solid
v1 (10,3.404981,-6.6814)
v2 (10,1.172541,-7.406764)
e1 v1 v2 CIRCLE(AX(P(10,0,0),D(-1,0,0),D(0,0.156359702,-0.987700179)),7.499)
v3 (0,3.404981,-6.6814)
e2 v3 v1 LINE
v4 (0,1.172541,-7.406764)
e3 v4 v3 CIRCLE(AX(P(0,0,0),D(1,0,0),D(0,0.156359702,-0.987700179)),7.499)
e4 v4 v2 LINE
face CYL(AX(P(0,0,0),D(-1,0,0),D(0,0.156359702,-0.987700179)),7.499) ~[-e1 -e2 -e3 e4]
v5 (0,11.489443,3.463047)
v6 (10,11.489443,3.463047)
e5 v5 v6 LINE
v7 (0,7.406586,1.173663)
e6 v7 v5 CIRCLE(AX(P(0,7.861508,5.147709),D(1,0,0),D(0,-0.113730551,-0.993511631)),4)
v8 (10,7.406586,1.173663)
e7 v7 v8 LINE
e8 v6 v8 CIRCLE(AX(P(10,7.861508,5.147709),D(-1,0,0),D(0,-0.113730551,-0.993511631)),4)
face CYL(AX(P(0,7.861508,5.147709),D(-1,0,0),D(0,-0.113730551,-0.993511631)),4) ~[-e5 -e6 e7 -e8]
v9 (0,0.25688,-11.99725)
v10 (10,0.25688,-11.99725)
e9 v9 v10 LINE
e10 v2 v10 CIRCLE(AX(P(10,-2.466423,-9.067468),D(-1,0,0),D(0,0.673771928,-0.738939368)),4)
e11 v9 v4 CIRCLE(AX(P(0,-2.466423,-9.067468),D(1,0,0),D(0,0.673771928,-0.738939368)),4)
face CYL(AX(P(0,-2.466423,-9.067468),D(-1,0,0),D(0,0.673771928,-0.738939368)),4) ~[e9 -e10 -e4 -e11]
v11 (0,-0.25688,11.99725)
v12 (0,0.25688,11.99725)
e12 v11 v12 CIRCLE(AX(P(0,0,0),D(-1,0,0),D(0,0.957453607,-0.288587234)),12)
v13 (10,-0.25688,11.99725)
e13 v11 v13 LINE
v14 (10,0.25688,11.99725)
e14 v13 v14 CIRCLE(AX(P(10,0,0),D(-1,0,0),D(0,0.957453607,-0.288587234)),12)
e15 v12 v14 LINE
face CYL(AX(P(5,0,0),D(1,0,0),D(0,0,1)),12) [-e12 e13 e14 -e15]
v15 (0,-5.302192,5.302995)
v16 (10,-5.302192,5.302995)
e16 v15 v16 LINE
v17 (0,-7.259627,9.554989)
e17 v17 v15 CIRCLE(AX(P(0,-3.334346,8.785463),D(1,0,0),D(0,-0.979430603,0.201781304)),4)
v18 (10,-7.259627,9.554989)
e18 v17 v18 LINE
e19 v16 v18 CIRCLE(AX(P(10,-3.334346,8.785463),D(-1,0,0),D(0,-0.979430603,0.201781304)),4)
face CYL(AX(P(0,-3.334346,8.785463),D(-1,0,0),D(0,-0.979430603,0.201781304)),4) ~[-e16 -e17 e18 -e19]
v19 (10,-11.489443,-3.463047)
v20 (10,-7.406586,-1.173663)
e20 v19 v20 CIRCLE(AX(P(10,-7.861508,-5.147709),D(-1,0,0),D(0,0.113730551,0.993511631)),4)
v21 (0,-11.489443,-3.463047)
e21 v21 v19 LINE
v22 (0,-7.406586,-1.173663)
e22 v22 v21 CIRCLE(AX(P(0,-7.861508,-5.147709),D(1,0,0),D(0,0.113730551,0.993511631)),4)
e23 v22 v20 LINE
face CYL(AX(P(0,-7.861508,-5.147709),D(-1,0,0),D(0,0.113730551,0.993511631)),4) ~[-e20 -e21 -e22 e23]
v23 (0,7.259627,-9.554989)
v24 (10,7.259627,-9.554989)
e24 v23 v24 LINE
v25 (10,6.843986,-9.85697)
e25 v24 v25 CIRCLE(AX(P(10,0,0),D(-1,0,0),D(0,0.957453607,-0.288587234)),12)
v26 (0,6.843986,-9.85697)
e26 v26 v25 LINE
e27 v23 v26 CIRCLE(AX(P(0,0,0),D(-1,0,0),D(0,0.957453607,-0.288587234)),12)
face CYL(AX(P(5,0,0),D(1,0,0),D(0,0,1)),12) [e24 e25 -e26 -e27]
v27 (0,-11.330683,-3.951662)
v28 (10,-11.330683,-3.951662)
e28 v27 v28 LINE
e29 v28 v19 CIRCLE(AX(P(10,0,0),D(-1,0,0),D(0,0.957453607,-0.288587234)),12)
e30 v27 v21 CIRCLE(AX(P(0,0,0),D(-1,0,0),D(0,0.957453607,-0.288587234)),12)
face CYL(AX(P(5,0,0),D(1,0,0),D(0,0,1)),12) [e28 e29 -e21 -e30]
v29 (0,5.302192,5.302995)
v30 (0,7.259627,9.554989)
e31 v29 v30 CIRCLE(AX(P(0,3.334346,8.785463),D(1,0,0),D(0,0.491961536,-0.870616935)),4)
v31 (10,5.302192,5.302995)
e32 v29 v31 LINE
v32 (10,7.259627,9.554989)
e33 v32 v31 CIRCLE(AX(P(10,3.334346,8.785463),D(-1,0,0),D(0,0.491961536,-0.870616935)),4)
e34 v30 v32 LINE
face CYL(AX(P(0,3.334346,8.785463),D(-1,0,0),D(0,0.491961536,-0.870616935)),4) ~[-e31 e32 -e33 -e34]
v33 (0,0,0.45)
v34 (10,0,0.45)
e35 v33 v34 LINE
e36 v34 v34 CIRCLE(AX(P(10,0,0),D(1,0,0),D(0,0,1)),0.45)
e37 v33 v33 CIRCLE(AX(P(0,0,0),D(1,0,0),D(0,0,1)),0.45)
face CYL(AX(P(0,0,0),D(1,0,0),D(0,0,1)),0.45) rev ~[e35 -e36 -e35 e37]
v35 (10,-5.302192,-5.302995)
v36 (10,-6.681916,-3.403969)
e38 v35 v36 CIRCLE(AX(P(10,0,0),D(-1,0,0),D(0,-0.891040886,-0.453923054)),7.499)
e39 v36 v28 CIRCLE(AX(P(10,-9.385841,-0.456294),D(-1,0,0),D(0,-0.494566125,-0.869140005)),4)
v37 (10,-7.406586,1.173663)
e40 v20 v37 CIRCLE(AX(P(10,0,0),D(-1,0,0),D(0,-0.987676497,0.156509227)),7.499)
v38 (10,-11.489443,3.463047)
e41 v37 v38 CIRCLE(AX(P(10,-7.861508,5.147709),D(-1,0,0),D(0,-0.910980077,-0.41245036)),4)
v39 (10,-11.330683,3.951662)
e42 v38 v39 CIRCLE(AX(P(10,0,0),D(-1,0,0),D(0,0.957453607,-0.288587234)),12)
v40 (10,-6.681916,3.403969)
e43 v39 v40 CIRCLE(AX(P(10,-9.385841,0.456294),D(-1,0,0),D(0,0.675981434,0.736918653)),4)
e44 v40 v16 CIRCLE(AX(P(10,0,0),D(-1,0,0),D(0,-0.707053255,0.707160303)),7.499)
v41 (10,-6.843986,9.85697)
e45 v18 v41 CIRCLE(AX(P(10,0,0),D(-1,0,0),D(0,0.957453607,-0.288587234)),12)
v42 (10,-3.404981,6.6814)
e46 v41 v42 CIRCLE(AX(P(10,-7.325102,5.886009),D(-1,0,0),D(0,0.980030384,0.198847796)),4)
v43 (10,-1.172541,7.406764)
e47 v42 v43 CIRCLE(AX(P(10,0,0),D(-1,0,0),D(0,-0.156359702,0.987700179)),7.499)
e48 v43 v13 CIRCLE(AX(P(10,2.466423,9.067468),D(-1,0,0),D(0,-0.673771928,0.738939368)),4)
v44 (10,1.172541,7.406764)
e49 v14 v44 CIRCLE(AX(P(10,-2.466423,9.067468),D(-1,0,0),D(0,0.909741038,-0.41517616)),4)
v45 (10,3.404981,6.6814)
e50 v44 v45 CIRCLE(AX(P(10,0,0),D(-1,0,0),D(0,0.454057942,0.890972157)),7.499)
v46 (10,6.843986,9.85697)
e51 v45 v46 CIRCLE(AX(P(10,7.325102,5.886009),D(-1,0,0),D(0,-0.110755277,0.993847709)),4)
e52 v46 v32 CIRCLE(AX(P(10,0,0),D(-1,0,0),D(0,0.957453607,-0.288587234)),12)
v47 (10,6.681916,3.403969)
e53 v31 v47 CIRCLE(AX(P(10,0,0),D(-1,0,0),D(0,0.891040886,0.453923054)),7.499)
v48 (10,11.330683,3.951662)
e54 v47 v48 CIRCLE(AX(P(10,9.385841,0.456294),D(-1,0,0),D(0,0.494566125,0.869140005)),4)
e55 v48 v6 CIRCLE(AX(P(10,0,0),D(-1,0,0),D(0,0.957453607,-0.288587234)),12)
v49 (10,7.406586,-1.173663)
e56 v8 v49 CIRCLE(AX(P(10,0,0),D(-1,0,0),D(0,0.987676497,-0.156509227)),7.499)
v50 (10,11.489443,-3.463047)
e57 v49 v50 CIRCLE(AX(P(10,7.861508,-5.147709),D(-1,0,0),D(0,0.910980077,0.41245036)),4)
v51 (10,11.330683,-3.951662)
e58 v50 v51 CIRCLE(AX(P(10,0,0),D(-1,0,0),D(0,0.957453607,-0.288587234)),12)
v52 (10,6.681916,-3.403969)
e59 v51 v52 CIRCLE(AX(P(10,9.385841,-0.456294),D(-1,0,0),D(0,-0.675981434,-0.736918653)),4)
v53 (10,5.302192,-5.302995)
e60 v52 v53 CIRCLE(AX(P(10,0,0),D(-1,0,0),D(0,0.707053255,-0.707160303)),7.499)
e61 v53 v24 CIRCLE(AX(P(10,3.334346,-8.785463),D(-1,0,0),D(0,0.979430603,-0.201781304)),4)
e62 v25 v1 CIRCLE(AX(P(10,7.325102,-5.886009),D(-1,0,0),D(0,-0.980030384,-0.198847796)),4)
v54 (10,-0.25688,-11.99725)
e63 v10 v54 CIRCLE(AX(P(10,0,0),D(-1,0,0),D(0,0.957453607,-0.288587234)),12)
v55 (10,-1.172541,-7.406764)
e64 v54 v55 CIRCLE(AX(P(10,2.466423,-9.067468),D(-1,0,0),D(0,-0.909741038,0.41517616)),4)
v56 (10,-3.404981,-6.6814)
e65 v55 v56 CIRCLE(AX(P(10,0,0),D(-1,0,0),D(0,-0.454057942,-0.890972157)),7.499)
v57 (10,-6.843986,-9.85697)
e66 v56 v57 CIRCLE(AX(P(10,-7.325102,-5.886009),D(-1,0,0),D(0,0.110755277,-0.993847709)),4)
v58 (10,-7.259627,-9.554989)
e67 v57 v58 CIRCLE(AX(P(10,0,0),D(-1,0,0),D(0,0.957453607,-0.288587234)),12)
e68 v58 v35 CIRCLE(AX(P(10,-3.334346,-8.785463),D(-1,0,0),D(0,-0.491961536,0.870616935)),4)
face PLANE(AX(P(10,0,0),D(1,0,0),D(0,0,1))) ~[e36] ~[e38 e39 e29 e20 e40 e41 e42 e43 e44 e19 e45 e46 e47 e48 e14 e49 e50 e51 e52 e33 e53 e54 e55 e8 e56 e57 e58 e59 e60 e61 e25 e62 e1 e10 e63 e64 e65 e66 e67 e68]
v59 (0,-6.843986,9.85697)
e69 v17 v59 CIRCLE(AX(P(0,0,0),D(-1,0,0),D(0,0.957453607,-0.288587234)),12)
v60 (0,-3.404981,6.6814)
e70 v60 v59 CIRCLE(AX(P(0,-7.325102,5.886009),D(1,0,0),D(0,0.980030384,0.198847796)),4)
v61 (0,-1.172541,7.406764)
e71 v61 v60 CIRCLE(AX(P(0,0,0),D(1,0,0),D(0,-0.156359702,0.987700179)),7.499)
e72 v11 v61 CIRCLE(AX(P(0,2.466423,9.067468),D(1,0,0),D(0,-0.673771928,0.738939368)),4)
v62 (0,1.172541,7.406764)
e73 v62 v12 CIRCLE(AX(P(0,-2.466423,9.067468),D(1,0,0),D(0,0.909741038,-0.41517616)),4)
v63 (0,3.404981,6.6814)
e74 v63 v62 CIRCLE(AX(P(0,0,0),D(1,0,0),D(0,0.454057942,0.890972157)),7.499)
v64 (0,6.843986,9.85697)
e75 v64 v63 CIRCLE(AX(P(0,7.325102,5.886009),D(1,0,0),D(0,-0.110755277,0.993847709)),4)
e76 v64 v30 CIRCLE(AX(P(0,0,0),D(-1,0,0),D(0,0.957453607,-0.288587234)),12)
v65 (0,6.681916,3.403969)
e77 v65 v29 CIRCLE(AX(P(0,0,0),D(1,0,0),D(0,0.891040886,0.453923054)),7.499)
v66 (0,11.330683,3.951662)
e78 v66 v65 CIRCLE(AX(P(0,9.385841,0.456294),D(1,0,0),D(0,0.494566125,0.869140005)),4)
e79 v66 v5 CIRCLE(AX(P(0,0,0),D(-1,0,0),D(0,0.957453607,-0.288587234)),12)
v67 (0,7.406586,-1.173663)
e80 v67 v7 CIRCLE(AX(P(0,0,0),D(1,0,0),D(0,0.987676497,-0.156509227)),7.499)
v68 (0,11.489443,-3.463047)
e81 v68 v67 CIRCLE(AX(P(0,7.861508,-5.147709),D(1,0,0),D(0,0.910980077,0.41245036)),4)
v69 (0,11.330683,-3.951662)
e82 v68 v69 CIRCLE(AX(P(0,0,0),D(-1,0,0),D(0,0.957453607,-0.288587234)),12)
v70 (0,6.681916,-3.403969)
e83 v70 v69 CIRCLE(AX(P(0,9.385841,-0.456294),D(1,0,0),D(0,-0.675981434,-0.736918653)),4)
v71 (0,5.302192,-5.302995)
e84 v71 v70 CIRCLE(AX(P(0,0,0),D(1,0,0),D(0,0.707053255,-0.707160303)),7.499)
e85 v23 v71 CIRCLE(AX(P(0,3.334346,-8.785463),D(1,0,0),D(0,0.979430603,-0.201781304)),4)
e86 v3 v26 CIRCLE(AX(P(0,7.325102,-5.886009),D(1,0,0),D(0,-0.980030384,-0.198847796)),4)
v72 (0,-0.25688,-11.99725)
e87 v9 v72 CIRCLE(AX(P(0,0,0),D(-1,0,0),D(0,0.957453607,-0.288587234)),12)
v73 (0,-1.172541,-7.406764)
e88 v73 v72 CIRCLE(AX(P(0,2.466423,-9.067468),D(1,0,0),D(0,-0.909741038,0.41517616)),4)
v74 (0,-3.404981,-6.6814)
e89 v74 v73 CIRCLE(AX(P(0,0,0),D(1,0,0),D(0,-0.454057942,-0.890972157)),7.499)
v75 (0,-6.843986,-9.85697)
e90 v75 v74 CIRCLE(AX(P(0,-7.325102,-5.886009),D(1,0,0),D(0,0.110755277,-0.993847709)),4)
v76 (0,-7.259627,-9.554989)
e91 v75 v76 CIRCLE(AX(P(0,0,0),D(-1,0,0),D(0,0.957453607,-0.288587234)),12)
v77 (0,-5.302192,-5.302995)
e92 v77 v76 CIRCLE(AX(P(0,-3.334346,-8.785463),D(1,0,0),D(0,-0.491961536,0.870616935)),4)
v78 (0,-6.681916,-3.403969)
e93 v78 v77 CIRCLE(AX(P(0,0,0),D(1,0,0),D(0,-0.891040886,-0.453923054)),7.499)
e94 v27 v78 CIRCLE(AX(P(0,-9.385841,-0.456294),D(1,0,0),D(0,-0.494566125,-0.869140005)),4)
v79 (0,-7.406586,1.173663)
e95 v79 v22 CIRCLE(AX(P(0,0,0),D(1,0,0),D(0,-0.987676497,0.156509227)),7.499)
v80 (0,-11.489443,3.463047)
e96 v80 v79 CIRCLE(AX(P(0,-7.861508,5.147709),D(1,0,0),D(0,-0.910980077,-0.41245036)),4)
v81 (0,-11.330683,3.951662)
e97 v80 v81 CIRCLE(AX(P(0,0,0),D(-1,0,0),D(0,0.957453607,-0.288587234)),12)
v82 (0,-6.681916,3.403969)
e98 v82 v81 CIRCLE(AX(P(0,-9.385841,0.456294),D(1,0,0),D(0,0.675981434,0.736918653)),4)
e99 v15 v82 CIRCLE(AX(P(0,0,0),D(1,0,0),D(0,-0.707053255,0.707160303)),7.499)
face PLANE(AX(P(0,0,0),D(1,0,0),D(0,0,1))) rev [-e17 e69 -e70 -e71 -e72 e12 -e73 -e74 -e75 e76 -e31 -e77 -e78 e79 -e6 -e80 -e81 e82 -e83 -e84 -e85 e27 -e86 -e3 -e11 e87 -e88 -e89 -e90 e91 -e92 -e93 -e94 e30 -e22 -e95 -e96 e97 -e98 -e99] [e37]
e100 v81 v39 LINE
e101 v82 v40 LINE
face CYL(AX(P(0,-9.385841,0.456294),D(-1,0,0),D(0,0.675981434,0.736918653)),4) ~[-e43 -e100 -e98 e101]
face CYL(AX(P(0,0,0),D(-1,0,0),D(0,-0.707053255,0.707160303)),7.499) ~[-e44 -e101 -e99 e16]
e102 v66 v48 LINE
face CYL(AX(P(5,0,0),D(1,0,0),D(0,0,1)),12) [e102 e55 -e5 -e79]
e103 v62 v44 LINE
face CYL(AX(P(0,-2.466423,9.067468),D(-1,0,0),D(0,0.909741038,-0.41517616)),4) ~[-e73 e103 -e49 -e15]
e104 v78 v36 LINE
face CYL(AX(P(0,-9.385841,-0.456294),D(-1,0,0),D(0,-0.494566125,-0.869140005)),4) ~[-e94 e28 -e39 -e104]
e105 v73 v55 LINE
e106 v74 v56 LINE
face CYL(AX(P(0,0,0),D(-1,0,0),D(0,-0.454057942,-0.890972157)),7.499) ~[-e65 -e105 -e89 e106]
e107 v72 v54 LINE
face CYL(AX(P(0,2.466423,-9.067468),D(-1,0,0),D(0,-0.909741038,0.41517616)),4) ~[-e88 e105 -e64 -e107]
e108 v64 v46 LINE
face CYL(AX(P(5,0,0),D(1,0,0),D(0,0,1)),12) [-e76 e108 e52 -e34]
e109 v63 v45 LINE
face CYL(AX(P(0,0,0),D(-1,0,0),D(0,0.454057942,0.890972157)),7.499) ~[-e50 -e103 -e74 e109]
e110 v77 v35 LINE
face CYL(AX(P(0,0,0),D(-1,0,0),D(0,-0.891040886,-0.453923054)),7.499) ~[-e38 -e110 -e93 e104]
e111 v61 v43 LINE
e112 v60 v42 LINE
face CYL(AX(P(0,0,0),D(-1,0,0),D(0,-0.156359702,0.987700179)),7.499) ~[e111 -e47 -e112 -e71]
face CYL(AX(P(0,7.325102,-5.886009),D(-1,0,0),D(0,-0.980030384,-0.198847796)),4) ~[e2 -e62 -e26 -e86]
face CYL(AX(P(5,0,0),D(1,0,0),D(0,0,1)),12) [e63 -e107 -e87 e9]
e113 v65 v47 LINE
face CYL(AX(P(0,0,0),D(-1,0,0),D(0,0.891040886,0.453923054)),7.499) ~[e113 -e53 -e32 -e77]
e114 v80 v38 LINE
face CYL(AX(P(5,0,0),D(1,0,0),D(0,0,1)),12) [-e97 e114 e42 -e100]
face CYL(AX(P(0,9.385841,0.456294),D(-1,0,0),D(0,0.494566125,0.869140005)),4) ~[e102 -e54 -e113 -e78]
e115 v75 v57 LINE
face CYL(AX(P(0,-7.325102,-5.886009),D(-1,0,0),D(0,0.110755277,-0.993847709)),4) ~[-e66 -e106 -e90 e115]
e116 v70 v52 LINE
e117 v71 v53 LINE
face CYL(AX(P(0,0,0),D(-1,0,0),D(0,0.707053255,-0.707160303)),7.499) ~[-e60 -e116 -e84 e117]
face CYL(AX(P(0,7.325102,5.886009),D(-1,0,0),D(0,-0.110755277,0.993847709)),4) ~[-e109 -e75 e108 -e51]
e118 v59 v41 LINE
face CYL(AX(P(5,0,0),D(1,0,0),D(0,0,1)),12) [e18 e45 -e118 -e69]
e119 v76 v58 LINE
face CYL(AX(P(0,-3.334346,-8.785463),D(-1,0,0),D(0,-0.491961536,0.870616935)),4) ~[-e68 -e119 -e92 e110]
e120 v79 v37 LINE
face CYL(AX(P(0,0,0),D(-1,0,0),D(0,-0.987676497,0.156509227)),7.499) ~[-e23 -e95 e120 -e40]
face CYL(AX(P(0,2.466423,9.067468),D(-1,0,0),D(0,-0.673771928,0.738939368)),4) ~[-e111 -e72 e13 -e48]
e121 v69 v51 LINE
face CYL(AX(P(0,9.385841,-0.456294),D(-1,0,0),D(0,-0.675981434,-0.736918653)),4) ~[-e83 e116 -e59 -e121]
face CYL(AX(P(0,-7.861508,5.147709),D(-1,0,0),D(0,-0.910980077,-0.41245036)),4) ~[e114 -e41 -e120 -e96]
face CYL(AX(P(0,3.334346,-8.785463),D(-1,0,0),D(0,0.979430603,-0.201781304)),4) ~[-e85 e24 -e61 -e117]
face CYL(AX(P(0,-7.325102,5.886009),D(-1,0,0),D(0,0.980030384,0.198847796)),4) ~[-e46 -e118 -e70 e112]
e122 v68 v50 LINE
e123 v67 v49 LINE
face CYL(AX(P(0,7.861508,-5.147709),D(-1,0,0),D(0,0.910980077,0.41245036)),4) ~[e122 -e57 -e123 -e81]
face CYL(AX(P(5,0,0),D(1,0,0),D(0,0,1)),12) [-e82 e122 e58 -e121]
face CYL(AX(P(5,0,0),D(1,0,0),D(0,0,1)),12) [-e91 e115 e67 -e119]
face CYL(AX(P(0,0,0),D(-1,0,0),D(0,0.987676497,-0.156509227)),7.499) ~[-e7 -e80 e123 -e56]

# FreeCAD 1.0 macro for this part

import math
import FreeCAD as App
import Part
import Sketcher

doc = App.newDocument("Part")
params = doc.addObject("Spreadsheet::Sheet", "Params")
for row, (alias, value) in enumerate([
    ("sketch1_width", "10 mm"),
    ("sketch1_height", "12 mm"),
    ("revolution_angle", "360 deg"),
    ("sketch2_radius", "4 mm"),
    ("sketch3_diameter", "0.9 mm"),
    ("pocket2_length", "100.000102 mm"),
], start=1):
    params.set(f"A{row}", alias)
    params.set(f"B{row}", "=" + value)
    params.setAlias(f"B{row}", alias)

body = doc.addObject("PartDesign::Body", "Body")

# Sketch on XZ plane
sketch1 = body.newObject("Sketcher::SketchObject", "Sketch")
sketch1.AttachmentSupport = (doc.getObject("XZ_Plane"), [""])
sketch1.MapMode = "FlatFace"
sketch1.addGeometry(Part.LineSegment(App.Vector(0, -12, 0), App.Vector(0, 0, 0)), False)
sketch1.addGeometry(Part.LineSegment(App.Vector(0, 0, 0), App.Vector(10, 0, 0)), False)
sketch1.addGeometry(Part.LineSegment(App.Vector(10, 0, 0), App.Vector(10, -12, 0)), False)
sketch1.addGeometry(Part.LineSegment(App.Vector(10, -12, 0), App.Vector(0, -12, 0)), False)
sketch1.addConstraint(Sketcher.Constraint("Coincident", 0, 2, 1, 1))
sketch1.addConstraint(Sketcher.Constraint("Coincident", 1, 2, 2, 1))
sketch1.addConstraint(Sketcher.Constraint("Coincident", 2, 2, 3, 1))
sketch1.addConstraint(Sketcher.Constraint("Coincident", 3, 2, 0, 1))
sketch1.addConstraint(Sketcher.Constraint("Vertical", 0))
sketch1.addConstraint(Sketcher.Constraint("Horizontal", 1))
sketch1.addConstraint(Sketcher.Constraint("Vertical", 2))
sketch1.addConstraint(Sketcher.Constraint("Horizontal", 3))
sketch1.addConstraint(Sketcher.Constraint("Coincident", 0, 2, -1, 1))
sketch1.addConstraint(Sketcher.Constraint("DistanceX", 1, 1, 1, 2, 10.0))
sketch1.addConstraint(Sketcher.Constraint("DistanceY", 0, 1, 0, 2, 12.0))
sketch1.setExpression("Constraints[9]", "Params.sketch1_width")
sketch1.setExpression("Constraints[10]", "Params.sketch1_height")
revolution = body.newObject("PartDesign::Revolution", "Revolution")
revolution.Profile = sketch1
revolution.ReferenceAxis = (sketch1, ["H_Axis"])
revolution.setExpression("Angle", "Params.revolution_angle")

# Sketch on YZ plane
sketch2 = body.newObject("Sketcher::SketchObject", "Sketch001")
sketch2.AttachmentSupport = (doc.getObject("YZ_Plane"), [""])
sketch2.MapMode = "FlatFace"
sketch2.addGeometry(Part.ArcOfCircle(Part.Circle(App.Vector(0, 0, 0), App.Vector(0, 0, 1), 7.5), math.radians(-9), math.radians(9)), False)
sketch2.addGeometry(Part.ArcOfCircle(Part.Circle(App.Vector(7.9, -5.1, 0), App.Vector(0, 0, 1), 4), math.radians(24), math.radians(97)), False)
sketch2.addGeometry(Part.ArcOfCircle(Part.Circle(App.Vector(0, 0, 0), App.Vector(0, 0, 1), 12), math.radians(-17), math.radians(17)), False)
sketch2.addGeometry(Part.ArcOfCircle(Part.Circle(App.Vector(7.9, 5.1, 0), App.Vector(0, 0, 1), 4), math.radians(-97), math.radians(-24)), False)
sketch2.addConstraint(Sketcher.Constraint("Coincident", 0, 1, 1, 2))
sketch2.addConstraint(Sketcher.Constraint("Coincident", 1, 1, 2, 1))
sketch2.addConstraint(Sketcher.Constraint("Coincident", 2, 2, 3, 2))
sketch2.addConstraint(Sketcher.Constraint("Coincident", 3, 1, 0, 2))
sketch2.addConstraint(Sketcher.Constraint("Coincident", 0, 3, -1, 1))
sketch2.addConstraint(Sketcher.Constraint("Coincident", 2, 3, -1, 1))
sketch2.addConstraint(Sketcher.Constraint("Equal", 1, 3))
sketch2.addConstraint(Sketcher.Constraint("Symmetric", 1, 3, 3, 3, -1))
sketch2.addConstraint(Sketcher.Constraint("Radius", 1, 4.0))
sketch2.addConstraint(Sketcher.Constraint("Radius", 0, 7.499))
sketch2.addConstraint(Sketcher.Constraint("Radius", 2, 12.0254))
sketch2.addConstraint(Sketcher.Constraint("DistanceY", 1, 3, 1, 1, 1.649801))
sketch2.addConstraint(Sketcher.Constraint("DistanceX", -1, 1, 1, 3, 7.861508))
sketch2.setExpression("Constraints[8]", "Params.sketch2_radius")
pocket1 = body.newObject("PartDesign::Pocket", "Pocket")
pocket1.Profile = sketch2
pocket1.Type = "ThroughAll"
pocket1.Reversed = True
doc.recompute()

polarpattern = body.newObject("PartDesign::PolarPattern", "PolarPattern")
polarpattern.Originals = [pocket1]
polarpattern.Axis = (doc.getObject("X_Axis"), [""])
polarpattern.Angle = 360
polarpattern.Occurrences = 10
body.Tip = polarpattern

# Sketch on YZ plane
sketch3 = body.newObject("Sketcher::SketchObject", "Sketch002")
sketch3.AttachmentSupport = (doc.getObject("YZ_Plane"), [""])
sketch3.MapMode = "FlatFace"
sketch3.addGeometry(Part.Circle(App.Vector(0, 0, 0), App.Vector(0, 0, 1), 0.45), False)
sketch3.addConstraint(Sketcher.Constraint("Coincident", 0, 3, -1, 1))
sketch3.addConstraint(Sketcher.Constraint("Diameter", 0, 0.9))
sketch3.setExpression("Constraints[1]", "Params.sketch3_diameter")
pocket2 = body.newObject("PartDesign::Pocket", "Pocket001")
pocket2.Profile = sketch3
pocket2.setExpression("Length", "Params.pocket2_length")
pocket2.Midplane = True

doc.recompute()
